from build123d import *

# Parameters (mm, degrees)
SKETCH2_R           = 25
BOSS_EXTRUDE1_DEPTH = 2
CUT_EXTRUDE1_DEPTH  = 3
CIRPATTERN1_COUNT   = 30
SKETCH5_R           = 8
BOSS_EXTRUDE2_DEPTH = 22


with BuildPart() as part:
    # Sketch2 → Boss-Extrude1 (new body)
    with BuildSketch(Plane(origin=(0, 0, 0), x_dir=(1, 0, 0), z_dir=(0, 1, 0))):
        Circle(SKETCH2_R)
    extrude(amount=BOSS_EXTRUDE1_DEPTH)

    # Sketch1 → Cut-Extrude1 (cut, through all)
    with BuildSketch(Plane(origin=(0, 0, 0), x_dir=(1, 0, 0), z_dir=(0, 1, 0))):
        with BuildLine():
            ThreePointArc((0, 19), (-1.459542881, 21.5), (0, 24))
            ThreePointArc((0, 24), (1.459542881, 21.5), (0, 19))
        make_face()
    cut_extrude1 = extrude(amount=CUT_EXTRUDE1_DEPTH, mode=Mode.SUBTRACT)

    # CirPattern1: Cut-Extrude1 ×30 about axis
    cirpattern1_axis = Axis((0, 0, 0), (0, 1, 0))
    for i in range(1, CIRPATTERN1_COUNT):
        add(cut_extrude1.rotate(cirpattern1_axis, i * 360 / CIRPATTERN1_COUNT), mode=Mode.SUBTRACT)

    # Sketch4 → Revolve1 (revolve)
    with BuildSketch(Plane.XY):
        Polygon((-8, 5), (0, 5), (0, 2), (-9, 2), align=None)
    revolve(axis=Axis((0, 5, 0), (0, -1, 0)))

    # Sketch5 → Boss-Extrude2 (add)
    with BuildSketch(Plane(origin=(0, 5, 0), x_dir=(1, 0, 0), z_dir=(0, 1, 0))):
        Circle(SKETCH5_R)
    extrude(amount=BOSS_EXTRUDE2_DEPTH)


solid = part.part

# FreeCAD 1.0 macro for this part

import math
import FreeCAD as App
import Part
import Sketcher
from FreeCAD import Vector
Q = App.Units.Quantity

doc = App.newDocument("Part")
body = doc.addObject("PartDesign::Body", "Body")

# Sketch on XZ plane
sketch1 = body.newObject("Sketcher::SketchObject", "Sketch")
sketch1.AttachmentSupport = (doc.getObject("XZ_Plane"), [""])
sketch1.MapMode = "FlatFace"
sketch1.addGeometry(Part.Circle(Vector(0, 0, 0), Vector(0, 0, 1), 25), False)
sketch1.addConstraint(Sketcher.Constraint("Coincident", 0, 3, -1, 1))
sketch1.addConstraint(Sketcher.Constraint("Diameter", 0, Q("50 mm")))
pad1 = body.newObject("PartDesign::Pad", "Pad")
pad1.Profile = sketch1
pad1.Length = 2
pad1.Reversed = True

# Sketch on XZ plane
sketch2 = body.newObject("Sketcher::SketchObject", "Sketch001")
sketch2.AttachmentSupport = (doc.getObject("XZ_Plane"), [""])
sketch2.MapMode = "FlatFace"
sketch2.addGeometry(Part.ArcOfCircle(Part.Circle(Vector(1.41131, -21.5, 0), Vector(0, 0, 1), 2.870853), math.radians(119.445769), math.radians(240.554231)), False)
sketch2.addGeometry(Part.ArcOfCircle(Part.Circle(Vector(-1.41131, -21.5, 0), Vector(0, 0, 1), 2.870853), math.radians(-60.554231), math.radians(60.554231)), False)
sketch2.addConstraint(Sketcher.Constraint("Coincident", 0, 1, 1, 2))
sketch2.addConstraint(Sketcher.Constraint("Coincident", 1, 1, 0, 2))
sketch2.addConstraint(Sketcher.Constraint("Equal", 0, 1))
sketch2.addConstraint(Sketcher.Constraint("Symmetric", 0, 3, 1, 3, -2))
sketch2.addConstraint(Sketcher.Constraint("DistanceY", 0, 1, -1, 1, Q("19 mm")))
sketch2.addConstraint(Sketcher.Constraint("DistanceY", 1, 1, -1, 1, Q("24 mm")))
sketch2.addConstraint(Sketcher.Constraint("Radius", 0, Q("2.870853 mm")))
pocket1 = body.newObject("PartDesign::Pocket", "Pocket")
pocket1.Profile = sketch2
pocket1.Type = "ThroughAll"
doc.recompute()

polarpattern = body.newObject("PartDesign::PolarPattern", "PolarPattern")
polarpattern.Originals = [pocket1]
polarpattern.Axis = (doc.getObject("Y_Axis"), [""])
polarpattern.Angle = 360
polarpattern.Occurrences = 30
body.Tip = polarpattern

# Sketch on XY plane
sketch3 = body.newObject("Sketcher::SketchObject", "Sketch002")
sketch3.AttachmentSupport = (doc.getObject("XY_Plane"), [""])
sketch3.MapMode = "FlatFace"
sketch3.addGeometry(Part.LineSegment(Vector(0, 5, 0), Vector(-8, 5, 0)), False)
sketch3.addGeometry(Part.LineSegment(Vector(-8, 5, 0), Vector(-9, 2, 0)), False)
sketch3.addGeometry(Part.LineSegment(Vector(-9, 2, 0), Vector(0, 2, 0)), False)
sketch3.addGeometry(Part.LineSegment(Vector(0, 2, 0), Vector(0, 5, 0)), False)
sketch3.addConstraint(Sketcher.Constraint("Coincident", 0, 2, 1, 1))
sketch3.addConstraint(Sketcher.Constraint("Coincident", 1, 2, 2, 1))
sketch3.addConstraint(Sketcher.Constraint("Coincident", 2, 2, 3, 1))
sketch3.addConstraint(Sketcher.Constraint("Coincident", 3, 2, 0, 1))
sketch3.addConstraint(Sketcher.Constraint("Horizontal", 0))
sketch3.addConstraint(Sketcher.Constraint("Horizontal", 2))
sketch3.addConstraint(Sketcher.Constraint("Vertical", 3))
sketch3.addConstraint(Sketcher.Constraint("PointOnObject", 2, 2, -2))
sketch3.addConstraint(Sketcher.Constraint("DistanceX", 0, 2, 0, 1, Q("8 mm")))
sketch3.addConstraint(Sketcher.Constraint("DistanceX", 2, 1, 2, 2, Q("9 mm")))
sketch3.addConstraint(Sketcher.Constraint("DistanceY", 3, 1, 3, 2, Q("3 mm")))
sketch3.addConstraint(Sketcher.Constraint("DistanceY", -1, 1, 0, 2, Q("5 mm")))
revolution = body.newObject("PartDesign::Revolution", "Revolution")
revolution.Profile = sketch3
revolution.ReferenceAxis = (sketch3, ["V_Axis"])
revolution.Angle = 360

# Sketch on XZ plane
sketch4 = body.newObject("Sketcher::SketchObject", "Sketch003")
sketch4.AttachmentSupport = (doc.getObject("XZ_Plane"), [""])
sketch4.MapMode = "FlatFace"
sketch4.AttachmentOffset = App.Placement(Vector(0, 0, -5), App.Rotation())
sketch4.addGeometry(Part.Circle(Vector(0, 0, 0), Vector(0, 0, 1), 8), False)
sketch4.addConstraint(Sketcher.Constraint("Coincident", 0, 3, -1, 1))
sketch4.addConstraint(Sketcher.Constraint("Diameter", 0, Q("16 mm")))
pad2 = body.newObject("PartDesign::Pad", "Pad001")
pad2.Profile = sketch4
pad2.Length = 22
pad2.Reversed = True

doc.recompute()
